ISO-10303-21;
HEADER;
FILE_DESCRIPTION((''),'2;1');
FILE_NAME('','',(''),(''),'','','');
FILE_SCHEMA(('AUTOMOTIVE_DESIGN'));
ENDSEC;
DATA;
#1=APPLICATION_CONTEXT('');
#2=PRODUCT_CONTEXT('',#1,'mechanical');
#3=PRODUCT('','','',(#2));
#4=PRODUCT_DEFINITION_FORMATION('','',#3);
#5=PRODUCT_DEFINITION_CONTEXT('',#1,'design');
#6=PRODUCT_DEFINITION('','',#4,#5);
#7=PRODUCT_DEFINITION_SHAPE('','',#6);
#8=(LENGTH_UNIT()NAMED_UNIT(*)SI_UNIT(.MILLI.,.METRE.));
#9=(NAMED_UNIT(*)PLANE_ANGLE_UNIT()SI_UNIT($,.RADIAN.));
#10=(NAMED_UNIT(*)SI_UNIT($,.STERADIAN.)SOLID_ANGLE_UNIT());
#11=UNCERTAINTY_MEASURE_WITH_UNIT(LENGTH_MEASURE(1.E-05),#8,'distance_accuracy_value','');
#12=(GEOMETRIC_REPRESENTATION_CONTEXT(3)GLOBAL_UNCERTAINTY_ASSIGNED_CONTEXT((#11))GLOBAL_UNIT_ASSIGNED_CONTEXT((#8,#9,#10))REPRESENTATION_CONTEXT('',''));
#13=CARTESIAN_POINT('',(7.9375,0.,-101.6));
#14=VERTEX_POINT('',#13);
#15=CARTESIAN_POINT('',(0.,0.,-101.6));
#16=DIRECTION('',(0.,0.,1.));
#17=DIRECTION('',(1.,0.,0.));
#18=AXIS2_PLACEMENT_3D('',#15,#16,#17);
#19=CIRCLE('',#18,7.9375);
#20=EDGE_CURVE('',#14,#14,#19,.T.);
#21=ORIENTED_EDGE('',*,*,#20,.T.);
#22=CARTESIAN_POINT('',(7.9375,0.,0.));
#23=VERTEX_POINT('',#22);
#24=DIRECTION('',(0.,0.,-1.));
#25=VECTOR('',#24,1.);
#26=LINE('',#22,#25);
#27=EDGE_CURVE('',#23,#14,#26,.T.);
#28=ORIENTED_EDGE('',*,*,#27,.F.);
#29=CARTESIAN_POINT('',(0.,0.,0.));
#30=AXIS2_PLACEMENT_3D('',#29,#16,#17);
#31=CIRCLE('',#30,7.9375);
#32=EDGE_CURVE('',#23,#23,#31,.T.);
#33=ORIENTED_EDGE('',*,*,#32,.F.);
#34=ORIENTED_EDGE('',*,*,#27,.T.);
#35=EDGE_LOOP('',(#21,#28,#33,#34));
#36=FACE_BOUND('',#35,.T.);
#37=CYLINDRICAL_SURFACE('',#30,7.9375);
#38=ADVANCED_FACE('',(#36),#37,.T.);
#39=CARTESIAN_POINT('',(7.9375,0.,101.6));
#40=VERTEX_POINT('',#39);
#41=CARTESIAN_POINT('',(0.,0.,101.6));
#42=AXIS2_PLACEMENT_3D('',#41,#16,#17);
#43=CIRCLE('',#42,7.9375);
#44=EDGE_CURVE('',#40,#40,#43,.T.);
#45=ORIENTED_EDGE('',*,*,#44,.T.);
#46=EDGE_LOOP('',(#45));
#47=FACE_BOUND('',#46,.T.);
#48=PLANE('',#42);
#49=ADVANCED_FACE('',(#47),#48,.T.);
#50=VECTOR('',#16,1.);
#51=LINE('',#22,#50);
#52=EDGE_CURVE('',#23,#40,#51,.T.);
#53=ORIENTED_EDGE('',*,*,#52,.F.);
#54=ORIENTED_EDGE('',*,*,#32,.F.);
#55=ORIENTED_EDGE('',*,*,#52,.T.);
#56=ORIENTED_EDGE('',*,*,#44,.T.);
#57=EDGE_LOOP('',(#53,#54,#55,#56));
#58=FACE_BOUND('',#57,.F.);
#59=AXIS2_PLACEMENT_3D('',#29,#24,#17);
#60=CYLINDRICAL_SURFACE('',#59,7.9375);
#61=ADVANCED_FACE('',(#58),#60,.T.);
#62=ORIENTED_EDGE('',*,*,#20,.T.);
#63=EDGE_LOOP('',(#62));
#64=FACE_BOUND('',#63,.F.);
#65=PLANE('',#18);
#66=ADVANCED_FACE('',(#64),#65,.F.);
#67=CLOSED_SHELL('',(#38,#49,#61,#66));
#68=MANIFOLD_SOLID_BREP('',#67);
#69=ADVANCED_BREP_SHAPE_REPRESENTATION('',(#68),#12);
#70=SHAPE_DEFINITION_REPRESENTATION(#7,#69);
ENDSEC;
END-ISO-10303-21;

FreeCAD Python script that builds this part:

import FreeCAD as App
import Part
import Sketcher

V = App.Vector
Q = App.Units.Quantity

doc = App.newDocument("Part")
body = doc.addObject("PartDesign::Body", "Body")

sketch1 = doc.addObject("Sketcher::SketchObject", "Sketch")
body.addObject(sketch1)
sketch1.AttachmentSupport = (doc.XY_Plane, [""])
sketch1.MapMode = "FlatFace"
sketch1.addGeometry(Part.Circle(V(0, 0, 0), V(0, 0, 1), 7.9375), False)
sketch1.addConstraint(Sketcher.Constraint("Coincident", 0, 3, -1, 1))
sketch1.addConstraint(Sketcher.Constraint("Diameter", 0, Q("0.625 in")))
pad1 = doc.addObject("PartDesign::Pad", "Pad")
body.addObject(pad1)
pad1.Profile = sketch1
pad1.Length = Q("8 in")
pad1.Midplane = True

doc.recompute()
